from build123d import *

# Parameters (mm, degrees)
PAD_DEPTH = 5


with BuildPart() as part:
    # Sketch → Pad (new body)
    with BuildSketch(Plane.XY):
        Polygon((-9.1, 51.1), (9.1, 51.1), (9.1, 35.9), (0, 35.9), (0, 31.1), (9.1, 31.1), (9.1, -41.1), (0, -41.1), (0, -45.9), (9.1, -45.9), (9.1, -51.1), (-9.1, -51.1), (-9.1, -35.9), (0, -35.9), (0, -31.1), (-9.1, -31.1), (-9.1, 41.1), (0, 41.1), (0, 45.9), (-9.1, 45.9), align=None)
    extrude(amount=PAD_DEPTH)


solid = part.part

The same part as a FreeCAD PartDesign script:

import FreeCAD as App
import Part
import Sketcher


def add_polygon(sketch, points):
    """Adds a closed chain of lines whose ends are joined by coincident constraints."""
    first, n = sketch.GeometryCount, len(points)
    for a, b in zip(points, points[1:] + points[:1]):
        sketch.addGeometry(Part.LineSegment(App.Vector(*a, 0), App.Vector(*b, 0)), False)
    for i in range(n):
        sketch.addConstraint(Sketcher.Constraint("Coincident", first + i, 2, first + (i + 1) % n, 1))

doc = App.newDocument("Part")
body = doc.addObject("PartDesign::Body", "Body")

# Sketch on XY plane
sketch1 = doc.addObject("Sketcher::SketchObject", "Sketch")
body.addObject(sketch1)
sketch1.AttachmentSupport = (doc.XY_Plane, [""])
sketch1.MapMode = "FlatFace"
add_polygon(sketch1, [(9.1, 51.1), (-9.1, 51.1), (-9.1, 45.9), (0, 45.9), (0, 41.1), (-9.1, 41.1), (-9.1, -31.1), (0, -31.1), (0, -35.9), (-9.1, -35.9), (-9.1, -51.1), (9.1, -51.1), (9.1, -45.9), (0, -45.9), (0, -41.1), (9.1, -41.1), (9.1, 31.1), (0, 31.1), (0, 35.9), (9.1, 35.9)])  # lines 0-19
sketch1.addConstraint(Sketcher.Constraint("Horizontal", 0))
sketch1.addConstraint(Sketcher.Constraint("Vertical", 1))
sketch1.addConstraint(Sketcher.Constraint("Horizontal", 2))
sketch1.addConstraint(Sketcher.Constraint("Vertical", 3))
sketch1.addConstraint(Sketcher.Constraint("Horizontal", 4))
sketch1.addConstraint(Sketcher.Constraint("Vertical", 5))
sketch1.addConstraint(Sketcher.Constraint("Horizontal", 6))
sketch1.addConstraint(Sketcher.Constraint("Vertical", 7))
sketch1.addConstraint(Sketcher.Constraint("Horizontal", 8))
sketch1.addConstraint(Sketcher.Constraint("Vertical", 9))
sketch1.addConstraint(Sketcher.Constraint("Horizontal", 10))
sketch1.addConstraint(Sketcher.Constraint("Vertical", 11))
sketch1.addConstraint(Sketcher.Constraint("Horizontal", 12))
sketch1.addConstraint(Sketcher.Constraint("Vertical", 13))
sketch1.addConstraint(Sketcher.Constraint("Horizontal", 14))
sketch1.addConstraint(Sketcher.Constraint("Vertical", 15))
sketch1.addConstraint(Sketcher.Constraint("Horizontal", 16))
sketch1.addConstraint(Sketcher.Constraint("Vertical", 17))
sketch1.addConstraint(Sketcher.Constraint("Horizontal", 18))
sketch1.addConstraint(Sketcher.Constraint("Vertical", 19))
sketch1.addConstraint(Sketcher.Constraint("Symmetric", 0, 2, 10, 2, -1, 1))
sketch1.addConstraint(Sketcher.Constraint("Symmetric", 2, 2, 12, 2, -1, 1))
sketch1.addConstraint(Sketcher.Constraint("Symmetric", 4, 2, 14, 2, -1, 1))
sketch1.addConstraint(Sketcher.Constraint("Symmetric", 6, 2, 16, 2, -1, 1))
sketch1.addConstraint(Sketcher.Constraint("Symmetric", 8, 2, 18, 2, -1, 1))
sketch1.addConstraint(Sketcher.Constraint("PointOnObject", 2, 2, -2))
sketch1.addConstraint(Sketcher.Constraint("PointOnObject", 6, 2, -2))
sketch1.addConstraint(Sketcher.Constraint("Vertical", 1, 2, 4, 2))
sketch1.addConstraint(Sketcher.Constraint("Vertical", 5, 2, 8, 2))
sketch1.addConstraint(Sketcher.Constraint("Equal", 3, 7))
sketch1.addConstraint(Sketcher.Constraint("DistanceX", 0, 2, 0, 1, 18.2))
sketch1.addConstraint(Sketcher.Constraint("DistanceY", 1, 2, 1, 1, 5.2))
sketch1.addConstraint(Sketcher.Constraint("DistanceY", 3, 2, 3, 1, 4.8))
sketch1.addConstraint(Sketcher.Constraint("DistanceY", 5, 2, 5, 1, 72.2))
sketch1.addConstraint(Sketcher.Constraint("DistanceY", 9, 2, 9, 1, 15.2))
pad1 = doc.addObject("PartDesign::Pad", "Pad")
body.addObject(pad1)
pad1.Profile = sketch1
pad1.Length = 5

doc.recompute()
